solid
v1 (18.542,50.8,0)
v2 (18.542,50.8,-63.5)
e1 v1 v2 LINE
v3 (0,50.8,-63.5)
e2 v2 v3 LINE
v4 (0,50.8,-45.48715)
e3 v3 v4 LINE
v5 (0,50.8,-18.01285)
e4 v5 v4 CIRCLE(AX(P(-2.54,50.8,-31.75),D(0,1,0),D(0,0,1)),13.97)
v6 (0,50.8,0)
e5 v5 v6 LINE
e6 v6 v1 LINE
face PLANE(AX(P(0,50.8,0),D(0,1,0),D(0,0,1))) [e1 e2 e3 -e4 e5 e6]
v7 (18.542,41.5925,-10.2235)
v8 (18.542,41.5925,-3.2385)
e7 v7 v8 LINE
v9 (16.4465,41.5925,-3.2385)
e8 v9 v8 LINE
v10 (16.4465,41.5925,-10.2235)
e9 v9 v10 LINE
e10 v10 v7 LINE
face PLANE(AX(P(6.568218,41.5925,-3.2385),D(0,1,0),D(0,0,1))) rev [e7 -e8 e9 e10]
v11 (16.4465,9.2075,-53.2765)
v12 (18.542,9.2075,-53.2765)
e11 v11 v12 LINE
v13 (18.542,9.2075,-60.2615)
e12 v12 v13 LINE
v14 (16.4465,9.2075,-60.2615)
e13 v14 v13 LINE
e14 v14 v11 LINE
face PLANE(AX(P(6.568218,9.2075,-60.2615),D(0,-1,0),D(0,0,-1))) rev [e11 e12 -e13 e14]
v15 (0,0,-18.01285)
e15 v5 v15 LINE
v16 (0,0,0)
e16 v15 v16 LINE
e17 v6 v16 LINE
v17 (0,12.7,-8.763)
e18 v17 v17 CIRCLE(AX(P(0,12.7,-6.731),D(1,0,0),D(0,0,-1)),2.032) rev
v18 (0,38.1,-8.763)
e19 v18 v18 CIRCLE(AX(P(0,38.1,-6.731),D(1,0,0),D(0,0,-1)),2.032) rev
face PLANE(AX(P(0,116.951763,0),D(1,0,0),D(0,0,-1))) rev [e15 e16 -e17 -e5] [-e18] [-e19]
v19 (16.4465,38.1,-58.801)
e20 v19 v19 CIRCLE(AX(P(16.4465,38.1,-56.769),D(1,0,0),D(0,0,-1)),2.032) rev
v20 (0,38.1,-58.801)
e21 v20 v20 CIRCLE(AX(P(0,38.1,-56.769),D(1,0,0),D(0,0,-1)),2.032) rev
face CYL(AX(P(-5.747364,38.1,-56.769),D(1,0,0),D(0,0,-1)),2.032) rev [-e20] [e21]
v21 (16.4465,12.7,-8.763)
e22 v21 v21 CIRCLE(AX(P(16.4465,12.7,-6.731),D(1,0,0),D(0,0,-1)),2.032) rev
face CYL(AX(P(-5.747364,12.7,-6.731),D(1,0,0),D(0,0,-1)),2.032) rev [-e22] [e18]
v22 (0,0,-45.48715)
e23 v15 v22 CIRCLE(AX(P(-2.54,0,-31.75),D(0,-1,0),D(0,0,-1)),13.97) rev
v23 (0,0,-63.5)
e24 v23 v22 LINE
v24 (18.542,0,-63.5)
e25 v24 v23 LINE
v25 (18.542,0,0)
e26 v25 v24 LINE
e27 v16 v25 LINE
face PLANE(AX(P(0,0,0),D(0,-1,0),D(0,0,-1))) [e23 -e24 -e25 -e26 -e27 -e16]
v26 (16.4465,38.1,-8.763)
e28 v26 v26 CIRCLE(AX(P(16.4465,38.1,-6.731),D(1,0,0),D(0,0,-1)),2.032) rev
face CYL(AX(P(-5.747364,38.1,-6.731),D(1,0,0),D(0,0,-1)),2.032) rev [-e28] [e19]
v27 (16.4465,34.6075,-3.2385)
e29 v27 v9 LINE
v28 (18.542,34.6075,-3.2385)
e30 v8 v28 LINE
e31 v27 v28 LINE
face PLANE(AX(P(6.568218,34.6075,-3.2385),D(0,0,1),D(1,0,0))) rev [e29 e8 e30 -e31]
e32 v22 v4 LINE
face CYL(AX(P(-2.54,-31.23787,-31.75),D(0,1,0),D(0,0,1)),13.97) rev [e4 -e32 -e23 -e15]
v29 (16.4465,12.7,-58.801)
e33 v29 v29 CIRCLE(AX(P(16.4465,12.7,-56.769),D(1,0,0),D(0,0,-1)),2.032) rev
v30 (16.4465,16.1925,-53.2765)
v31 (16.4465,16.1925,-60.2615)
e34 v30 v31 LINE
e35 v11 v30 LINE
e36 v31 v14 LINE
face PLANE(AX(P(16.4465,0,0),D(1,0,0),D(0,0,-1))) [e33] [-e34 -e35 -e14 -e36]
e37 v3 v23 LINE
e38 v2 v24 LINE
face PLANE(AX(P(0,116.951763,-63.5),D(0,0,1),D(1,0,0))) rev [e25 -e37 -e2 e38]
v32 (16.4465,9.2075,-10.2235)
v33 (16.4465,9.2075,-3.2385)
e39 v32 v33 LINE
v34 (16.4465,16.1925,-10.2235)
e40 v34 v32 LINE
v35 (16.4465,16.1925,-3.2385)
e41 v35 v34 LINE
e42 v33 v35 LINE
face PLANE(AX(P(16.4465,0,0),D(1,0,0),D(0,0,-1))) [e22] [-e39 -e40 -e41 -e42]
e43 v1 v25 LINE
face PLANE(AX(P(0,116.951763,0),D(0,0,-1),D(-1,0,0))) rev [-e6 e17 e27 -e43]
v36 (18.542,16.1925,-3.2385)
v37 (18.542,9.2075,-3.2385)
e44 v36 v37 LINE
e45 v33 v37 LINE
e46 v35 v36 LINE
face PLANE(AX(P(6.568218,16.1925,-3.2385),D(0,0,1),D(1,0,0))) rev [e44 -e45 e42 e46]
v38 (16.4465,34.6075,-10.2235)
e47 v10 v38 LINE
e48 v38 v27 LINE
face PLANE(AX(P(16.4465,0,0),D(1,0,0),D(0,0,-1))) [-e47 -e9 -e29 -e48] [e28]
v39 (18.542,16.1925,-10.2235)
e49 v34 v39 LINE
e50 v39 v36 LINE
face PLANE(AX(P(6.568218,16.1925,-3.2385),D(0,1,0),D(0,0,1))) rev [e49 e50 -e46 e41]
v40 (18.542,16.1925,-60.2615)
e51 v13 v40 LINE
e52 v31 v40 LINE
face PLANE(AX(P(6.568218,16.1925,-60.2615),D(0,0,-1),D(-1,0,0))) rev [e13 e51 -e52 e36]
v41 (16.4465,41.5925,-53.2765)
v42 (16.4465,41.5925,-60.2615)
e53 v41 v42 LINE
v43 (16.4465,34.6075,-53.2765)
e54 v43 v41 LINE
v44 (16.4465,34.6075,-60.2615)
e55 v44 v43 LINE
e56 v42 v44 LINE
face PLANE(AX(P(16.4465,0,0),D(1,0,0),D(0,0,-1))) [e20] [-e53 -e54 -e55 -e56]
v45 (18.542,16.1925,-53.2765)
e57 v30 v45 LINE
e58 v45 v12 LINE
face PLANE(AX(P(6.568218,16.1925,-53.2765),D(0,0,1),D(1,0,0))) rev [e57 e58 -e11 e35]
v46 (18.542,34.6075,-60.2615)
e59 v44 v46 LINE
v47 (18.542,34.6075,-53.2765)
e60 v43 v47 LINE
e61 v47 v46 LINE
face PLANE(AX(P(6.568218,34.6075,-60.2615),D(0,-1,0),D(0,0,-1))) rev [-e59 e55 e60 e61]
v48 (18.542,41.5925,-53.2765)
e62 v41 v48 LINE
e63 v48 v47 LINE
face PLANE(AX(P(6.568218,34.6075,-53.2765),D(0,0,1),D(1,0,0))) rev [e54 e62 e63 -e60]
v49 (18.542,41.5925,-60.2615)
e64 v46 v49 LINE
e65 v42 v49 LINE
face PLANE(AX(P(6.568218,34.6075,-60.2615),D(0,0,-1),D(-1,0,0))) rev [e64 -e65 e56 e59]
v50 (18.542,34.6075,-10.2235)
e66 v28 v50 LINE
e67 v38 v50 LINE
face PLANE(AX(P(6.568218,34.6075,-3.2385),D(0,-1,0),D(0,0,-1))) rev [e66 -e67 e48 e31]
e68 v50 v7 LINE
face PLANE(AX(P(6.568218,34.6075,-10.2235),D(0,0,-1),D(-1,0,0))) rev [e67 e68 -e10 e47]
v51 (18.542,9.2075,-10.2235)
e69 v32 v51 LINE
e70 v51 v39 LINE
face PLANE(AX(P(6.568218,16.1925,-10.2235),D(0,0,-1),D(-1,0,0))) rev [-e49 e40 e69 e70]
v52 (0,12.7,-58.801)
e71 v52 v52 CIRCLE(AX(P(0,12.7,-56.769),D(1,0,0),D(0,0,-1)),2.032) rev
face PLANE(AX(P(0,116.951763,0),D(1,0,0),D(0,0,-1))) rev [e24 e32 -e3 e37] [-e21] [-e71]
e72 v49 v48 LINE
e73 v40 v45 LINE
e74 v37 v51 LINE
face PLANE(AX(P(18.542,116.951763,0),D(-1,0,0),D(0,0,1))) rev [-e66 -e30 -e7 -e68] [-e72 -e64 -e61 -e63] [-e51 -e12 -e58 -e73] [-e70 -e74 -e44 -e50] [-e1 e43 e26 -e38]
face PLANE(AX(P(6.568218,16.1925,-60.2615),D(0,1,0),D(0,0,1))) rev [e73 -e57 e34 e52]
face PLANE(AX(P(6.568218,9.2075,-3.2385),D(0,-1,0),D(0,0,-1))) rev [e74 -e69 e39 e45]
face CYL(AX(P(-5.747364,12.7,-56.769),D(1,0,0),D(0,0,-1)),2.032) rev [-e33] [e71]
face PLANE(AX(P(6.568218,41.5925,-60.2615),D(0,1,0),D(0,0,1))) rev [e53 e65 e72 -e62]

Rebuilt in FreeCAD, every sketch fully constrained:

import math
import FreeCAD as App
import Part
import Sketcher

V = App.Vector
Q = App.Units.Quantity

doc = App.newDocument("Part")
body = doc.addObject("PartDesign::Body", "Body")

# Sketch on XZ plane
sketch1 = doc.addObject("Sketcher::SketchObject", "Sketch")
body.addObject(sketch1)
sketch1.AttachmentSupport = (doc.XZ_Plane, [""])
sketch1.MapMode = "FlatFace"
sketch1.addGeometry([
    Part.LineSegment(V(0, -64, 0), V(0, 0, 0)),
    Part.LineSegment(V(0, 0, 0), V(19, 0, 0)),
    Part.LineSegment(V(19, 0, 0), V(19, -64, 0)),
    Part.LineSegment(V(19, -64, 0), V(0, -64, 0)),
], False)
sketch1.addConstraint([
    Sketcher.Constraint("Coincident", 0, 2, 1, 1),
    Sketcher.Constraint("Coincident", 1, 2, 2, 1),
    Sketcher.Constraint("Coincident", 2, 2, 3, 1),
    Sketcher.Constraint("Coincident", 3, 2, 0, 1),
    Sketcher.Constraint("Vertical", 0),
    Sketcher.Constraint("Horizontal", 1),
    Sketcher.Constraint("Vertical", 2),
    Sketcher.Constraint("Horizontal", 3),
    Sketcher.Constraint("Coincident", 0, 2, -1, 1),
    Sketcher.Constraint("DistanceY", 0, 1, 0, 2, Q("2.5 in")),
    Sketcher.Constraint("DistanceX", 1, 1, 1, 2, Q("0.73 in")),
])
pad1 = doc.addObject("PartDesign::Pad", "Pad")
body.addObject(pad1)
pad1.Profile = sketch1
pad1.Length = Q("2 in")
pad1.Reversed = True

# Sketch on XZ plane
sketch2 = doc.addObject("Sketcher::SketchObject", "Sketch001")
body.addObject(sketch2)
sketch2.AttachmentSupport = (doc.XZ_Plane, [""])
sketch2.MapMode = "FlatFace"
sketch2.AttachmentOffset = App.Placement(V(0, 0, -2 * 25.4), App.Rotation())
sketch2.addGeometry([
    Part.LineSegment(V(-3, -46, 0), V(-3, -18, 0)),
    Part.ArcOfCircle(Part.Circle(V(-3, -32, 0), V(0, 0, 1), 14), math.radians(-90), math.radians(90)),
], False)
sketch2.addConstraint([
    Sketcher.Constraint("Coincident", 0, 1, 1, 1),
    Sketcher.Constraint("Coincident", 1, 2, 0, 2),
    Sketcher.Constraint("Vertical", 0),
    Sketcher.Constraint("Vertical", 1, 3, 0, 1),
    Sketcher.Constraint("Radius", 1, Q("0.55 in")),
    Sketcher.Constraint("DistanceX", 1, 3, -1, 1, Q("0.1 in")),
    Sketcher.Constraint("DistanceY", 0, 1, -1, 1, Q("1.8 in")),
])
pocket1 = doc.addObject("PartDesign::Pocket", "Pocket")
body.addObject(pocket1)
pocket1.Profile = sketch2
pocket1.Length = Q("2 in")
pocket1.Reversed = True

# Sketch on YZ plane
sketch3 = doc.addObject("Sketcher::SketchObject", "Sketch002")
body.addObject(sketch3)
sketch3.AttachmentSupport = (doc.YZ_Plane, [""])
sketch3.MapMode = "FlatFace"
sketch3.AttachmentOffset = App.Placement(V(0, 0, 0.73 * 25.4), App.Rotation())
sketch3.addGeometry([
    Part.Circle(V(38.1, -56.8, 0), V(0, 0, 1), 2),
    Part.Circle(V(12.7, -56.8, 0), V(0, 0, 1), 2),
    Part.Circle(V(38.1, -6.7, 0), V(0, 0, 1), 2),
    Part.Circle(V(12.7, -6.7, 0), V(0, 0, 1), 2),
], False)
sketch3.addConstraint([
    Sketcher.Constraint("Equal", 0, 1),
    Sketcher.Constraint("Equal", 1, 2),
    Sketcher.Constraint("Equal", 2, 3),
    Sketcher.Constraint("Horizontal", 0, 3, 1, 3),
    Sketcher.Constraint("Horizontal", 2, 3, 3, 3),
    Sketcher.Constraint("Vertical", 0, 3, 2, 3),
    Sketcher.Constraint("Vertical", 1, 3, 3, 3),
    Sketcher.Constraint("Diameter", 0, Q("0.16 in")),
    Sketcher.Constraint("DistanceX", 1, 3, 0, 3, Q("1 in")),
    Sketcher.Constraint("DistanceX", -1, 1, 0, 3, Q("1.5 in")),
    Sketcher.Constraint("DistanceY", 0, 3, 2, 3, Q("1.97 in")),
    Sketcher.Constraint("DistanceY", 0, 3, -1, 1, Q("2.235 in")),
])
pocket2 = doc.addObject("PartDesign::Pocket", "Pocket001")
body.addObject(pocket2)
pocket2.Profile = sketch3
pocket2.Length = Q("0.73 in")

# Sketch on YZ plane
sketch4 = doc.addObject("Sketcher::SketchObject", "Sketch003")
body.addObject(sketch4)
sketch4.AttachmentSupport = (doc.YZ_Plane, [""])
sketch4.MapMode = "FlatFace"
sketch4.AttachmentOffset = App.Placement(V(0, 0, 0.6475 * 25.4), App.Rotation())
sketch4.addGeometry([
    Part.LineSegment(V(42, -53, 0), V(35, -53, 0)),  # 0
    Part.LineSegment(V(35, -53, 0), V(35, -60, 0)),  # 1
    Part.LineSegment(V(35, -60, 0), V(42, -60, 0)),  # 2
    Part.LineSegment(V(42, -60, 0), V(42, -53, 0)),  # 3
    Part.LineSegment(V(16, -53, 0), V(9, -53, 0)),  # 4
    Part.LineSegment(V(9, -53, 0), V(9, -60, 0)),  # 5
    Part.LineSegment(V(9, -60, 0), V(16, -60, 0)),  # 6
    Part.LineSegment(V(16, -60, 0), V(16, -53, 0)),  # 7
    Part.LineSegment(V(42, -3, 0), V(35, -3, 0)),  # 8
    Part.LineSegment(V(35, -3, 0), V(35, -10, 0)),  # 9
    Part.LineSegment(V(35, -10, 0), V(42, -10, 0)),  # 10
    Part.LineSegment(V(42, -10, 0), V(42, -3, 0)),  # 11
    Part.LineSegment(V(16, -3, 0), V(9, -3, 0)),  # 12
    Part.LineSegment(V(9, -3, 0), V(9, -10, 0)),  # 13
    Part.LineSegment(V(9, -10, 0), V(16, -10, 0)),  # 14
    Part.LineSegment(V(16, -10, 0), V(16, -3, 0)),  # 15
], False)
sketch4.addConstraint([
    Sketcher.Constraint("Coincident", 0, 2, 1, 1),
    Sketcher.Constraint("Coincident", 1, 2, 2, 1),
    Sketcher.Constraint("Coincident", 2, 2, 3, 1),
    Sketcher.Constraint("Coincident", 3, 2, 0, 1),
    Sketcher.Constraint("Coincident", 4, 2, 5, 1),
    Sketcher.Constraint("Coincident", 5, 2, 6, 1),
    Sketcher.Constraint("Coincident", 6, 2, 7, 1),
    Sketcher.Constraint("Coincident", 7, 2, 4, 1),
    Sketcher.Constraint("Coincident", 8, 2, 9, 1),
    Sketcher.Constraint("Coincident", 9, 2, 10, 1),
    Sketcher.Constraint("Coincident", 10, 2, 11, 1),
    Sketcher.Constraint("Coincident", 11, 2, 8, 1),
    Sketcher.Constraint("Coincident", 12, 2, 13, 1),
    Sketcher.Constraint("Coincident", 13, 2, 14, 1),
    Sketcher.Constraint("Coincident", 14, 2, 15, 1),
    Sketcher.Constraint("Coincident", 15, 2, 12, 1),
    Sketcher.Constraint("Horizontal", 0),
    Sketcher.Constraint("Vertical", 1),
    Sketcher.Constraint("Horizontal", 2),
    Sketcher.Constraint("Vertical", 3),
    Sketcher.Constraint("Horizontal", 4),
    Sketcher.Constraint("Vertical", 5),
    Sketcher.Constraint("Horizontal", 6),
    Sketcher.Constraint("Vertical", 7),
    Sketcher.Constraint("Horizontal", 8),
    Sketcher.Constraint("Vertical", 9),
    Sketcher.Constraint("Horizontal", 10),
    Sketcher.Constraint("Vertical", 11),
    Sketcher.Constraint("Horizontal", 12),
    Sketcher.Constraint("Vertical", 13),
    Sketcher.Constraint("Horizontal", 14),
    Sketcher.Constraint("Vertical", 15),
    Sketcher.Constraint("Horizontal", 3, 2, 4, 2),
    Sketcher.Constraint("Horizontal", 2, 2, 5, 2),
    Sketcher.Constraint("Horizontal", 11, 2, 12, 2),
    Sketcher.Constraint("Horizontal", 10, 2, 13, 2),
    Sketcher.Constraint("Vertical", 1, 2, 8, 2),
    Sketcher.Constraint("Vertical", 3, 2, 10, 2),
    Sketcher.Constraint("Vertical", 5, 2, 12, 2),
    Sketcher.Constraint("Vertical", 7, 2, 14, 2),
    Sketcher.Constraint("Equal", 2, 4),
    Sketcher.Constraint("Equal", 14, 1),
    Sketcher.Constraint("Equal", 7, 9),
    Sketcher.Constraint("DistanceX", 4, 2, 0, 2, Q("1 in")),
    Sketcher.Constraint("DistanceX", 0, 2, 0, 1, Q("0.275 in")),
    Sketcher.Constraint("DistanceY", 0, 2, 8, 2, Q("1.97 in")),
    Sketcher.Constraint("DistanceX", -1, 1, 0, 2, Q("1.3625 in")),
    Sketcher.Constraint("DistanceY", 0, 2, -1, 1, Q("2.0975 in")),
])
pocket3 = doc.addObject("PartDesign::Pocket", "Pocket002")
body.addObject(pocket3)
pocket3.Profile = sketch4
pocket3.Length = Q("0.0825 in")
pocket3.Reversed = True

doc.recompute()
